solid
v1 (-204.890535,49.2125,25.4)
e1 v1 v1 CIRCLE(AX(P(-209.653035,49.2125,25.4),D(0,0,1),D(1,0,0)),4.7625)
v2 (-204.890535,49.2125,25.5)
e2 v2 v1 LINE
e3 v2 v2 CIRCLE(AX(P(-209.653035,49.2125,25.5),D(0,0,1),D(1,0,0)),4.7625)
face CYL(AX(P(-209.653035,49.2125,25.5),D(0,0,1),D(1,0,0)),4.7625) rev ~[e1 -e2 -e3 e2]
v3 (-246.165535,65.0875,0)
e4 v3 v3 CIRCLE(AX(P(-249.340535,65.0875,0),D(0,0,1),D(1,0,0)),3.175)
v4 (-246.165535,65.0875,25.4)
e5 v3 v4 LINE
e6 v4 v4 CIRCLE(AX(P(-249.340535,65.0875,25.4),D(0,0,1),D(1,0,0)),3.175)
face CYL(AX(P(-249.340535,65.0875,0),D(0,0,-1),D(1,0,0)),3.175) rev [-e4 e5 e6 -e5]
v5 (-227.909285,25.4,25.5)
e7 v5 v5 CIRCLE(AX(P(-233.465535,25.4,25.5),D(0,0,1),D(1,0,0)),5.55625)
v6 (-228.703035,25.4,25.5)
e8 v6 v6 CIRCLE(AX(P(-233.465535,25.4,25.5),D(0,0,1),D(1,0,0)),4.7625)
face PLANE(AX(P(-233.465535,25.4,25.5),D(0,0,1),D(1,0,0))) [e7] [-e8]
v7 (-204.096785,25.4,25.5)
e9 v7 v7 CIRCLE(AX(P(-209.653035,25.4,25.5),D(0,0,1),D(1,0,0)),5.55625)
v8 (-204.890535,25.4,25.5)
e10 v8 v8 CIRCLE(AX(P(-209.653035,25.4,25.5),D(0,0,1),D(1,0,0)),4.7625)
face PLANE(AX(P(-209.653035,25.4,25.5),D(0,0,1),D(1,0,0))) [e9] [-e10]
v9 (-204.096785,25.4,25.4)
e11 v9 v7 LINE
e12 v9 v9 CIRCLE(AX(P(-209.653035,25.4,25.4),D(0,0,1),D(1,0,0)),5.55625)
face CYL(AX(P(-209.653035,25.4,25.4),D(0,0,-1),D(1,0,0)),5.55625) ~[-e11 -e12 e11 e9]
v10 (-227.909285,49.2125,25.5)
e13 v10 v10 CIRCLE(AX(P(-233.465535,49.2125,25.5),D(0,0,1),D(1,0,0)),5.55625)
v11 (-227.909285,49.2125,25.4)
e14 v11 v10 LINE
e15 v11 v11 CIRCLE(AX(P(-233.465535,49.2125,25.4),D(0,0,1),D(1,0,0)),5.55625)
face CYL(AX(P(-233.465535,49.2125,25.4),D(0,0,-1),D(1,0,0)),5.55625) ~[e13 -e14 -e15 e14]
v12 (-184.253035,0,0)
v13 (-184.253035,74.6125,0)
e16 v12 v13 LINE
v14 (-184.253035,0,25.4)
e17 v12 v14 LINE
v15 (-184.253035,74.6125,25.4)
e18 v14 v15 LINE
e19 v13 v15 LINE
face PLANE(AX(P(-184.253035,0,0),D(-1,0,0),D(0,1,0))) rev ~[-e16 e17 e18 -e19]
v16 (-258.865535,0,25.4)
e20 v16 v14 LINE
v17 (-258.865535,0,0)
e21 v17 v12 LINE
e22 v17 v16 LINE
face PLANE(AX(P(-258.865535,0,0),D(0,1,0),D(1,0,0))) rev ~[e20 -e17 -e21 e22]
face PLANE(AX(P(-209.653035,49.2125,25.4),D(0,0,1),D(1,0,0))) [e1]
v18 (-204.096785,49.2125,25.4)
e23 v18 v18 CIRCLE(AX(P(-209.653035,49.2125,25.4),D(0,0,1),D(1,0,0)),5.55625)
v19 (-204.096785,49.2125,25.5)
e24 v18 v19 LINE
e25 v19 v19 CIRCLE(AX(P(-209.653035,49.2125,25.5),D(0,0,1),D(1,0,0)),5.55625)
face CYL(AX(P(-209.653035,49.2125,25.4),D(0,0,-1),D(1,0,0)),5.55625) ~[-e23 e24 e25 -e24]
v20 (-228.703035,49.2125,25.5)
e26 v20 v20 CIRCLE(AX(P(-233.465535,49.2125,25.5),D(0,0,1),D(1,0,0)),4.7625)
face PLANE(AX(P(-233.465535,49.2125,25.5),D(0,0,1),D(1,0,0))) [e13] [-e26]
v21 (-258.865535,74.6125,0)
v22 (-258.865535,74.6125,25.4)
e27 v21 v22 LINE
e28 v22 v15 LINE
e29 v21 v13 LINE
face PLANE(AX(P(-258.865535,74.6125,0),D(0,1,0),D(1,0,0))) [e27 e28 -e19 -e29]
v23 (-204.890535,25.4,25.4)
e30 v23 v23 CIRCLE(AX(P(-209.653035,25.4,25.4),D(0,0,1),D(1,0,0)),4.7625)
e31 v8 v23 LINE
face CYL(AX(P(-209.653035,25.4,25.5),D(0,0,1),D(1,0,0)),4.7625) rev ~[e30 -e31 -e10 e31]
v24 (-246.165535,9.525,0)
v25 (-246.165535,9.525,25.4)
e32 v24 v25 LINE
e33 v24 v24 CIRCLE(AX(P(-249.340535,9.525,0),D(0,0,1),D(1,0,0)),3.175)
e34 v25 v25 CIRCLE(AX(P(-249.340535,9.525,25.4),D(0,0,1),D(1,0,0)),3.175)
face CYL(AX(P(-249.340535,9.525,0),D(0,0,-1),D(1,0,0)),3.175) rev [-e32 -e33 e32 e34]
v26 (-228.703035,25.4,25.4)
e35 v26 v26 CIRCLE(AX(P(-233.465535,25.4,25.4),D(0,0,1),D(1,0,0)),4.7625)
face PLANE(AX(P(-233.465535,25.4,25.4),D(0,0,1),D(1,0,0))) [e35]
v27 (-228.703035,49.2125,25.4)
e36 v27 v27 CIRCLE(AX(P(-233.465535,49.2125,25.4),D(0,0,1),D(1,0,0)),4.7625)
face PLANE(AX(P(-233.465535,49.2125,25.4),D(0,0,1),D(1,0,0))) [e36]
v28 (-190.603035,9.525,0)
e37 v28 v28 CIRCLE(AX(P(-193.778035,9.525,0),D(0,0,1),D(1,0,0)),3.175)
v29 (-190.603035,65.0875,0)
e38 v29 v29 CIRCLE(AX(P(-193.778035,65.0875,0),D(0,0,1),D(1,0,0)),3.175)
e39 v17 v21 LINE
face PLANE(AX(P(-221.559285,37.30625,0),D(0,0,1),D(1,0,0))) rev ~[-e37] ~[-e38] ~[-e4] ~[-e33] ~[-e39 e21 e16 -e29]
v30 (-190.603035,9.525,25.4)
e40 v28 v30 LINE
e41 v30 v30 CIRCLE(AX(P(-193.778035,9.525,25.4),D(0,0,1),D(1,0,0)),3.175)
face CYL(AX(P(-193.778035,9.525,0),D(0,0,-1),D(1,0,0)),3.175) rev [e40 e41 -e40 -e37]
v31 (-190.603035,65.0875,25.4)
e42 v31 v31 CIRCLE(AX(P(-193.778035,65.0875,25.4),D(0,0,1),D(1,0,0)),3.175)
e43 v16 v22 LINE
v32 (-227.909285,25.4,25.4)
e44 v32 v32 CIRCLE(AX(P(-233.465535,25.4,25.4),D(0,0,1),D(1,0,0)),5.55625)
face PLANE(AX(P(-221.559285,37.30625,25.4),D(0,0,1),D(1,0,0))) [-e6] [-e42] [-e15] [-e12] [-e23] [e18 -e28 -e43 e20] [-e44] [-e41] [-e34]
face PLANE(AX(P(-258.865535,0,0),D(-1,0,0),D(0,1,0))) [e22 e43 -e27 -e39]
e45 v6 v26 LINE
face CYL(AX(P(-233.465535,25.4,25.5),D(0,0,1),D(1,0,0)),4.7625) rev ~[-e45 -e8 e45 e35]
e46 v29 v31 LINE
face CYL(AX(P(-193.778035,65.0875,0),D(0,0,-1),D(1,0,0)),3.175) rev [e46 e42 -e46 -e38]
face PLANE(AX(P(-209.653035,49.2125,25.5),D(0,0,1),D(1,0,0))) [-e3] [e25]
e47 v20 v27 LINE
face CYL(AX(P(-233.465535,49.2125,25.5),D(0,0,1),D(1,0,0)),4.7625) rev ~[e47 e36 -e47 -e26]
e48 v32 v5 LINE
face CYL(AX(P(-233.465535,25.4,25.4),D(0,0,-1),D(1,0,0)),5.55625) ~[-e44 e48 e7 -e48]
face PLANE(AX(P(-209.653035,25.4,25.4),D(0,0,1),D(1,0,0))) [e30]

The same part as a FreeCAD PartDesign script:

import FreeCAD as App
import Part
import Sketcher
from FreeCAD import Vector
Q = App.Units.Quantity

doc = App.newDocument("Part")
body = doc.addObject("PartDesign::Body", "Body")

# Sketch on XY plane
sketch1 = doc.addObject("Sketcher::SketchObject", "Sketch")
body.addObject(sketch1)
sketch1.AttachmentSupport = (doc.XY_Plane, [""])
sketch1.MapMode = "FlatFace"
sketch1.addGeometry(Part.LineSegment(Vector(-259, 75, 0), Vector(-259, 0, 0)), False)
sketch1.addGeometry(Part.LineSegment(Vector(-259, 0, 0), Vector(-184, 0, 0)), False)
sketch1.addGeometry(Part.LineSegment(Vector(-184, 0, 0), Vector(-184, 75, 0)), False)
sketch1.addGeometry(Part.LineSegment(Vector(-184, 75, 0), Vector(-259, 75, 0)), False)
sketch1.addConstraint(Sketcher.Constraint("Coincident", 0, 2, 1, 1))
sketch1.addConstraint(Sketcher.Constraint("Coincident", 1, 2, 2, 1))
sketch1.addConstraint(Sketcher.Constraint("Coincident", 2, 2, 3, 1))
sketch1.addConstraint(Sketcher.Constraint("Coincident", 3, 2, 0, 1))
sketch1.addConstraint(Sketcher.Constraint("Vertical", 0))
sketch1.addConstraint(Sketcher.Constraint("Horizontal", 1))
sketch1.addConstraint(Sketcher.Constraint("Vertical", 2))
sketch1.addConstraint(Sketcher.Constraint("Horizontal", 3))
sketch1.addConstraint(Sketcher.Constraint("PointOnObject", 0, 2, -1))
sketch1.addConstraint(Sketcher.Constraint("Equal", 3, 0))
sketch1.addConstraint(Sketcher.Constraint("DistanceX", 1, 1, 1, 2, Q("2.9375 in")))
sketch1.addConstraint(Sketcher.Constraint("DistanceX", 0, 2, -1, 1, Q("258.865535 mm")))
pad1 = doc.addObject("PartDesign::Pad", "Pad")
body.addObject(pad1)
pad1.Profile = sketch1
pad1.Length = Q("1 in")

# Sketch on XY plane
sketch2 = doc.addObject("Sketcher::SketchObject", "Sketch001")
body.addObject(sketch2)
sketch2.AttachmentSupport = (doc.XY_Plane, [""])
sketch2.MapMode = "FlatFace"
sketch2.addGeometry(Part.Circle(Vector(-249.3, 65.1, 0), Vector(0, 0, 1), 3.2), False)
sketch2.addGeometry(Part.Circle(Vector(-193.8, 65.1, 0), Vector(0, 0, 1), 3.2), False)
sketch2.addGeometry(Part.Circle(Vector(-249.3, 9.5, 0), Vector(0, 0, 1), 3.2), False)
sketch2.addGeometry(Part.Circle(Vector(-193.8, 9.5, 0), Vector(0, 0, 1), 3.2), False)
sketch2.addConstraint(Sketcher.Constraint("Equal", 0, 1))
sketch2.addConstraint(Sketcher.Constraint("Equal", 1, 2))
sketch2.addConstraint(Sketcher.Constraint("Equal", 2, 3))
sketch2.addConstraint(Sketcher.Constraint("Horizontal", 0, 3, 1, 3))
sketch2.addConstraint(Sketcher.Constraint("Horizontal", 2, 3, 3, 3))
sketch2.addConstraint(Sketcher.Constraint("Vertical", 0, 3, 2, 3))
sketch2.addConstraint(Sketcher.Constraint("Vertical", 1, 3, 3, 3))
sketch2.addConstraint(Sketcher.Constraint("Diameter", 0, Q("0.25 in")))
sketch2.addConstraint(Sketcher.Constraint("DistanceY", -1, 1, 0, 3, Q("2.5625 in")))
sketch2.addConstraint(Sketcher.Constraint("DistanceY", -1, 1, 2, 3, Q("0.375 in")))
sketch2.addConstraint(Sketcher.Constraint("DistanceX", 0, 3, 1, 3, Q("2.1875 in")))
sketch2.addConstraint(Sketcher.Constraint("DistanceX", 0, 3, -1, 1, Q("249.340535 mm")))
pocket1 = doc.addObject("PartDesign::Pocket", "Pocket")
body.addObject(pocket1)
pocket1.Profile = sketch2
pocket1.Length = Q("1 in")
pocket1.Reversed = True

# Sketch on XY plane
sketch3 = doc.addObject("Sketcher::SketchObject", "Sketch002")
body.addObject(sketch3)
sketch3.AttachmentSupport = (doc.XY_Plane, [""])
sketch3.MapMode = "FlatFace"
sketch3.AttachmentOffset = App.Placement(Vector(0, 0, 1 * 25.4), App.Rotation())
sketch3.addGeometry(Part.Circle(Vector(-233, 49, 0), Vector(0, 0, 1), 6), False)
sketch3.addGeometry(Part.Circle(Vector(-210, 49, 0), Vector(0, 0, 1), 6), False)
sketch3.addGeometry(Part.Circle(Vector(-233, 25, 0), Vector(0, 0, 1), 6), False)
sketch3.addGeometry(Part.Circle(Vector(-210, 25, 0), Vector(0, 0, 1), 6), False)
sketch3.addConstraint(Sketcher.Constraint("Equal", 0, 1))
sketch3.addConstraint(Sketcher.Constraint("Equal", 1, 2))
sketch3.addConstraint(Sketcher.Constraint("Equal", 2, 3))
sketch3.addConstraint(Sketcher.Constraint("Horizontal", 0, 3, 1, 3))
sketch3.addConstraint(Sketcher.Constraint("Horizontal", 2, 3, 3, 3))
sketch3.addConstraint(Sketcher.Constraint("Vertical", 0, 3, 2, 3))
sketch3.addConstraint(Sketcher.Constraint("Vertical", 1, 3, 3, 3))
sketch3.addConstraint(Sketcher.Constraint("Diameter", 0, Q("0.4375 in")))
sketch3.addConstraint(Sketcher.Constraint("DistanceY", -1, 1, 2, 3, Q("1 in")))
sketch3.addConstraint(Sketcher.Constraint("DistanceY", -1, 1, 0, 3, Q("1.9375 in")))
sketch3.addConstraint(Sketcher.Constraint("DistanceX", 0, 3, 1, 3, Q("0.9375 in")))
sketch3.addConstraint(Sketcher.Constraint("DistanceX", 0, 3, -1, 1, Q("233.465535 mm")))
pad2 = doc.addObject("PartDesign::Pad", "Pad001")
body.addObject(pad2)
pad2.Profile = sketch3
pad2.Length = 0.1

# Sketch on XY plane
sketch4 = doc.addObject("Sketcher::SketchObject", "Sketch003")
body.addObject(sketch4)
sketch4.AttachmentSupport = (doc.XY_Plane, [""])
sketch4.MapMode = "FlatFace"
sketch4.AttachmentOffset = App.Placement(Vector(0, 0, 25.5), App.Rotation())
sketch4.addGeometry(Part.Circle(Vector(-233.5, 25.4, 0), Vector(0, 0, 1), 4.8), False)
sketch4.addGeometry(Part.Circle(Vector(-233.5, 49.2, 0), Vector(0, 0, 1), 4.8), False)
sketch4.addGeometry(Part.Circle(Vector(-209.7, 25.4, 0), Vector(0, 0, 1), 4.8), False)
sketch4.addGeometry(Part.Circle(Vector(-209.7, 49.2, 0), Vector(0, 0, 1), 4.8), False)
sketch4.addConstraint(Sketcher.Constraint("Equal", 0, 1))
sketch4.addConstraint(Sketcher.Constraint("Equal", 1, 2))
sketch4.addConstraint(Sketcher.Constraint("Equal", 2, 3))
sketch4.addConstraint(Sketcher.Constraint("Horizontal", 0, 3, 2, 3))
sketch4.addConstraint(Sketcher.Constraint("Horizontal", 1, 3, 3, 3))
sketch4.addConstraint(Sketcher.Constraint("Vertical", 0, 3, 1, 3))
sketch4.addConstraint(Sketcher.Constraint("Vertical", 2, 3, 3, 3))
sketch4.addConstraint(Sketcher.Constraint("Diameter", 0, Q("0.375 in")))
sketch4.addConstraint(Sketcher.Constraint("DistanceY", -1, 1, 0, 3, Q("1 in")))
sketch4.addConstraint(Sketcher.Constraint("DistanceY", -1, 1, 1, 3, Q("1.9375 in")))
sketch4.addConstraint(Sketcher.Constraint("DistanceX", 0, 3, 2, 3, Q("0.9375 in")))
sketch4.addConstraint(Sketcher.Constraint("DistanceX", 0, 3, -1, 1, Q("233.465535 mm")))
pocket2 = doc.addObject("PartDesign::Pocket", "Pocket001")
body.addObject(pocket2)
pocket2.Profile = sketch4
pocket2.Length = 0.1

doc.recompute()
